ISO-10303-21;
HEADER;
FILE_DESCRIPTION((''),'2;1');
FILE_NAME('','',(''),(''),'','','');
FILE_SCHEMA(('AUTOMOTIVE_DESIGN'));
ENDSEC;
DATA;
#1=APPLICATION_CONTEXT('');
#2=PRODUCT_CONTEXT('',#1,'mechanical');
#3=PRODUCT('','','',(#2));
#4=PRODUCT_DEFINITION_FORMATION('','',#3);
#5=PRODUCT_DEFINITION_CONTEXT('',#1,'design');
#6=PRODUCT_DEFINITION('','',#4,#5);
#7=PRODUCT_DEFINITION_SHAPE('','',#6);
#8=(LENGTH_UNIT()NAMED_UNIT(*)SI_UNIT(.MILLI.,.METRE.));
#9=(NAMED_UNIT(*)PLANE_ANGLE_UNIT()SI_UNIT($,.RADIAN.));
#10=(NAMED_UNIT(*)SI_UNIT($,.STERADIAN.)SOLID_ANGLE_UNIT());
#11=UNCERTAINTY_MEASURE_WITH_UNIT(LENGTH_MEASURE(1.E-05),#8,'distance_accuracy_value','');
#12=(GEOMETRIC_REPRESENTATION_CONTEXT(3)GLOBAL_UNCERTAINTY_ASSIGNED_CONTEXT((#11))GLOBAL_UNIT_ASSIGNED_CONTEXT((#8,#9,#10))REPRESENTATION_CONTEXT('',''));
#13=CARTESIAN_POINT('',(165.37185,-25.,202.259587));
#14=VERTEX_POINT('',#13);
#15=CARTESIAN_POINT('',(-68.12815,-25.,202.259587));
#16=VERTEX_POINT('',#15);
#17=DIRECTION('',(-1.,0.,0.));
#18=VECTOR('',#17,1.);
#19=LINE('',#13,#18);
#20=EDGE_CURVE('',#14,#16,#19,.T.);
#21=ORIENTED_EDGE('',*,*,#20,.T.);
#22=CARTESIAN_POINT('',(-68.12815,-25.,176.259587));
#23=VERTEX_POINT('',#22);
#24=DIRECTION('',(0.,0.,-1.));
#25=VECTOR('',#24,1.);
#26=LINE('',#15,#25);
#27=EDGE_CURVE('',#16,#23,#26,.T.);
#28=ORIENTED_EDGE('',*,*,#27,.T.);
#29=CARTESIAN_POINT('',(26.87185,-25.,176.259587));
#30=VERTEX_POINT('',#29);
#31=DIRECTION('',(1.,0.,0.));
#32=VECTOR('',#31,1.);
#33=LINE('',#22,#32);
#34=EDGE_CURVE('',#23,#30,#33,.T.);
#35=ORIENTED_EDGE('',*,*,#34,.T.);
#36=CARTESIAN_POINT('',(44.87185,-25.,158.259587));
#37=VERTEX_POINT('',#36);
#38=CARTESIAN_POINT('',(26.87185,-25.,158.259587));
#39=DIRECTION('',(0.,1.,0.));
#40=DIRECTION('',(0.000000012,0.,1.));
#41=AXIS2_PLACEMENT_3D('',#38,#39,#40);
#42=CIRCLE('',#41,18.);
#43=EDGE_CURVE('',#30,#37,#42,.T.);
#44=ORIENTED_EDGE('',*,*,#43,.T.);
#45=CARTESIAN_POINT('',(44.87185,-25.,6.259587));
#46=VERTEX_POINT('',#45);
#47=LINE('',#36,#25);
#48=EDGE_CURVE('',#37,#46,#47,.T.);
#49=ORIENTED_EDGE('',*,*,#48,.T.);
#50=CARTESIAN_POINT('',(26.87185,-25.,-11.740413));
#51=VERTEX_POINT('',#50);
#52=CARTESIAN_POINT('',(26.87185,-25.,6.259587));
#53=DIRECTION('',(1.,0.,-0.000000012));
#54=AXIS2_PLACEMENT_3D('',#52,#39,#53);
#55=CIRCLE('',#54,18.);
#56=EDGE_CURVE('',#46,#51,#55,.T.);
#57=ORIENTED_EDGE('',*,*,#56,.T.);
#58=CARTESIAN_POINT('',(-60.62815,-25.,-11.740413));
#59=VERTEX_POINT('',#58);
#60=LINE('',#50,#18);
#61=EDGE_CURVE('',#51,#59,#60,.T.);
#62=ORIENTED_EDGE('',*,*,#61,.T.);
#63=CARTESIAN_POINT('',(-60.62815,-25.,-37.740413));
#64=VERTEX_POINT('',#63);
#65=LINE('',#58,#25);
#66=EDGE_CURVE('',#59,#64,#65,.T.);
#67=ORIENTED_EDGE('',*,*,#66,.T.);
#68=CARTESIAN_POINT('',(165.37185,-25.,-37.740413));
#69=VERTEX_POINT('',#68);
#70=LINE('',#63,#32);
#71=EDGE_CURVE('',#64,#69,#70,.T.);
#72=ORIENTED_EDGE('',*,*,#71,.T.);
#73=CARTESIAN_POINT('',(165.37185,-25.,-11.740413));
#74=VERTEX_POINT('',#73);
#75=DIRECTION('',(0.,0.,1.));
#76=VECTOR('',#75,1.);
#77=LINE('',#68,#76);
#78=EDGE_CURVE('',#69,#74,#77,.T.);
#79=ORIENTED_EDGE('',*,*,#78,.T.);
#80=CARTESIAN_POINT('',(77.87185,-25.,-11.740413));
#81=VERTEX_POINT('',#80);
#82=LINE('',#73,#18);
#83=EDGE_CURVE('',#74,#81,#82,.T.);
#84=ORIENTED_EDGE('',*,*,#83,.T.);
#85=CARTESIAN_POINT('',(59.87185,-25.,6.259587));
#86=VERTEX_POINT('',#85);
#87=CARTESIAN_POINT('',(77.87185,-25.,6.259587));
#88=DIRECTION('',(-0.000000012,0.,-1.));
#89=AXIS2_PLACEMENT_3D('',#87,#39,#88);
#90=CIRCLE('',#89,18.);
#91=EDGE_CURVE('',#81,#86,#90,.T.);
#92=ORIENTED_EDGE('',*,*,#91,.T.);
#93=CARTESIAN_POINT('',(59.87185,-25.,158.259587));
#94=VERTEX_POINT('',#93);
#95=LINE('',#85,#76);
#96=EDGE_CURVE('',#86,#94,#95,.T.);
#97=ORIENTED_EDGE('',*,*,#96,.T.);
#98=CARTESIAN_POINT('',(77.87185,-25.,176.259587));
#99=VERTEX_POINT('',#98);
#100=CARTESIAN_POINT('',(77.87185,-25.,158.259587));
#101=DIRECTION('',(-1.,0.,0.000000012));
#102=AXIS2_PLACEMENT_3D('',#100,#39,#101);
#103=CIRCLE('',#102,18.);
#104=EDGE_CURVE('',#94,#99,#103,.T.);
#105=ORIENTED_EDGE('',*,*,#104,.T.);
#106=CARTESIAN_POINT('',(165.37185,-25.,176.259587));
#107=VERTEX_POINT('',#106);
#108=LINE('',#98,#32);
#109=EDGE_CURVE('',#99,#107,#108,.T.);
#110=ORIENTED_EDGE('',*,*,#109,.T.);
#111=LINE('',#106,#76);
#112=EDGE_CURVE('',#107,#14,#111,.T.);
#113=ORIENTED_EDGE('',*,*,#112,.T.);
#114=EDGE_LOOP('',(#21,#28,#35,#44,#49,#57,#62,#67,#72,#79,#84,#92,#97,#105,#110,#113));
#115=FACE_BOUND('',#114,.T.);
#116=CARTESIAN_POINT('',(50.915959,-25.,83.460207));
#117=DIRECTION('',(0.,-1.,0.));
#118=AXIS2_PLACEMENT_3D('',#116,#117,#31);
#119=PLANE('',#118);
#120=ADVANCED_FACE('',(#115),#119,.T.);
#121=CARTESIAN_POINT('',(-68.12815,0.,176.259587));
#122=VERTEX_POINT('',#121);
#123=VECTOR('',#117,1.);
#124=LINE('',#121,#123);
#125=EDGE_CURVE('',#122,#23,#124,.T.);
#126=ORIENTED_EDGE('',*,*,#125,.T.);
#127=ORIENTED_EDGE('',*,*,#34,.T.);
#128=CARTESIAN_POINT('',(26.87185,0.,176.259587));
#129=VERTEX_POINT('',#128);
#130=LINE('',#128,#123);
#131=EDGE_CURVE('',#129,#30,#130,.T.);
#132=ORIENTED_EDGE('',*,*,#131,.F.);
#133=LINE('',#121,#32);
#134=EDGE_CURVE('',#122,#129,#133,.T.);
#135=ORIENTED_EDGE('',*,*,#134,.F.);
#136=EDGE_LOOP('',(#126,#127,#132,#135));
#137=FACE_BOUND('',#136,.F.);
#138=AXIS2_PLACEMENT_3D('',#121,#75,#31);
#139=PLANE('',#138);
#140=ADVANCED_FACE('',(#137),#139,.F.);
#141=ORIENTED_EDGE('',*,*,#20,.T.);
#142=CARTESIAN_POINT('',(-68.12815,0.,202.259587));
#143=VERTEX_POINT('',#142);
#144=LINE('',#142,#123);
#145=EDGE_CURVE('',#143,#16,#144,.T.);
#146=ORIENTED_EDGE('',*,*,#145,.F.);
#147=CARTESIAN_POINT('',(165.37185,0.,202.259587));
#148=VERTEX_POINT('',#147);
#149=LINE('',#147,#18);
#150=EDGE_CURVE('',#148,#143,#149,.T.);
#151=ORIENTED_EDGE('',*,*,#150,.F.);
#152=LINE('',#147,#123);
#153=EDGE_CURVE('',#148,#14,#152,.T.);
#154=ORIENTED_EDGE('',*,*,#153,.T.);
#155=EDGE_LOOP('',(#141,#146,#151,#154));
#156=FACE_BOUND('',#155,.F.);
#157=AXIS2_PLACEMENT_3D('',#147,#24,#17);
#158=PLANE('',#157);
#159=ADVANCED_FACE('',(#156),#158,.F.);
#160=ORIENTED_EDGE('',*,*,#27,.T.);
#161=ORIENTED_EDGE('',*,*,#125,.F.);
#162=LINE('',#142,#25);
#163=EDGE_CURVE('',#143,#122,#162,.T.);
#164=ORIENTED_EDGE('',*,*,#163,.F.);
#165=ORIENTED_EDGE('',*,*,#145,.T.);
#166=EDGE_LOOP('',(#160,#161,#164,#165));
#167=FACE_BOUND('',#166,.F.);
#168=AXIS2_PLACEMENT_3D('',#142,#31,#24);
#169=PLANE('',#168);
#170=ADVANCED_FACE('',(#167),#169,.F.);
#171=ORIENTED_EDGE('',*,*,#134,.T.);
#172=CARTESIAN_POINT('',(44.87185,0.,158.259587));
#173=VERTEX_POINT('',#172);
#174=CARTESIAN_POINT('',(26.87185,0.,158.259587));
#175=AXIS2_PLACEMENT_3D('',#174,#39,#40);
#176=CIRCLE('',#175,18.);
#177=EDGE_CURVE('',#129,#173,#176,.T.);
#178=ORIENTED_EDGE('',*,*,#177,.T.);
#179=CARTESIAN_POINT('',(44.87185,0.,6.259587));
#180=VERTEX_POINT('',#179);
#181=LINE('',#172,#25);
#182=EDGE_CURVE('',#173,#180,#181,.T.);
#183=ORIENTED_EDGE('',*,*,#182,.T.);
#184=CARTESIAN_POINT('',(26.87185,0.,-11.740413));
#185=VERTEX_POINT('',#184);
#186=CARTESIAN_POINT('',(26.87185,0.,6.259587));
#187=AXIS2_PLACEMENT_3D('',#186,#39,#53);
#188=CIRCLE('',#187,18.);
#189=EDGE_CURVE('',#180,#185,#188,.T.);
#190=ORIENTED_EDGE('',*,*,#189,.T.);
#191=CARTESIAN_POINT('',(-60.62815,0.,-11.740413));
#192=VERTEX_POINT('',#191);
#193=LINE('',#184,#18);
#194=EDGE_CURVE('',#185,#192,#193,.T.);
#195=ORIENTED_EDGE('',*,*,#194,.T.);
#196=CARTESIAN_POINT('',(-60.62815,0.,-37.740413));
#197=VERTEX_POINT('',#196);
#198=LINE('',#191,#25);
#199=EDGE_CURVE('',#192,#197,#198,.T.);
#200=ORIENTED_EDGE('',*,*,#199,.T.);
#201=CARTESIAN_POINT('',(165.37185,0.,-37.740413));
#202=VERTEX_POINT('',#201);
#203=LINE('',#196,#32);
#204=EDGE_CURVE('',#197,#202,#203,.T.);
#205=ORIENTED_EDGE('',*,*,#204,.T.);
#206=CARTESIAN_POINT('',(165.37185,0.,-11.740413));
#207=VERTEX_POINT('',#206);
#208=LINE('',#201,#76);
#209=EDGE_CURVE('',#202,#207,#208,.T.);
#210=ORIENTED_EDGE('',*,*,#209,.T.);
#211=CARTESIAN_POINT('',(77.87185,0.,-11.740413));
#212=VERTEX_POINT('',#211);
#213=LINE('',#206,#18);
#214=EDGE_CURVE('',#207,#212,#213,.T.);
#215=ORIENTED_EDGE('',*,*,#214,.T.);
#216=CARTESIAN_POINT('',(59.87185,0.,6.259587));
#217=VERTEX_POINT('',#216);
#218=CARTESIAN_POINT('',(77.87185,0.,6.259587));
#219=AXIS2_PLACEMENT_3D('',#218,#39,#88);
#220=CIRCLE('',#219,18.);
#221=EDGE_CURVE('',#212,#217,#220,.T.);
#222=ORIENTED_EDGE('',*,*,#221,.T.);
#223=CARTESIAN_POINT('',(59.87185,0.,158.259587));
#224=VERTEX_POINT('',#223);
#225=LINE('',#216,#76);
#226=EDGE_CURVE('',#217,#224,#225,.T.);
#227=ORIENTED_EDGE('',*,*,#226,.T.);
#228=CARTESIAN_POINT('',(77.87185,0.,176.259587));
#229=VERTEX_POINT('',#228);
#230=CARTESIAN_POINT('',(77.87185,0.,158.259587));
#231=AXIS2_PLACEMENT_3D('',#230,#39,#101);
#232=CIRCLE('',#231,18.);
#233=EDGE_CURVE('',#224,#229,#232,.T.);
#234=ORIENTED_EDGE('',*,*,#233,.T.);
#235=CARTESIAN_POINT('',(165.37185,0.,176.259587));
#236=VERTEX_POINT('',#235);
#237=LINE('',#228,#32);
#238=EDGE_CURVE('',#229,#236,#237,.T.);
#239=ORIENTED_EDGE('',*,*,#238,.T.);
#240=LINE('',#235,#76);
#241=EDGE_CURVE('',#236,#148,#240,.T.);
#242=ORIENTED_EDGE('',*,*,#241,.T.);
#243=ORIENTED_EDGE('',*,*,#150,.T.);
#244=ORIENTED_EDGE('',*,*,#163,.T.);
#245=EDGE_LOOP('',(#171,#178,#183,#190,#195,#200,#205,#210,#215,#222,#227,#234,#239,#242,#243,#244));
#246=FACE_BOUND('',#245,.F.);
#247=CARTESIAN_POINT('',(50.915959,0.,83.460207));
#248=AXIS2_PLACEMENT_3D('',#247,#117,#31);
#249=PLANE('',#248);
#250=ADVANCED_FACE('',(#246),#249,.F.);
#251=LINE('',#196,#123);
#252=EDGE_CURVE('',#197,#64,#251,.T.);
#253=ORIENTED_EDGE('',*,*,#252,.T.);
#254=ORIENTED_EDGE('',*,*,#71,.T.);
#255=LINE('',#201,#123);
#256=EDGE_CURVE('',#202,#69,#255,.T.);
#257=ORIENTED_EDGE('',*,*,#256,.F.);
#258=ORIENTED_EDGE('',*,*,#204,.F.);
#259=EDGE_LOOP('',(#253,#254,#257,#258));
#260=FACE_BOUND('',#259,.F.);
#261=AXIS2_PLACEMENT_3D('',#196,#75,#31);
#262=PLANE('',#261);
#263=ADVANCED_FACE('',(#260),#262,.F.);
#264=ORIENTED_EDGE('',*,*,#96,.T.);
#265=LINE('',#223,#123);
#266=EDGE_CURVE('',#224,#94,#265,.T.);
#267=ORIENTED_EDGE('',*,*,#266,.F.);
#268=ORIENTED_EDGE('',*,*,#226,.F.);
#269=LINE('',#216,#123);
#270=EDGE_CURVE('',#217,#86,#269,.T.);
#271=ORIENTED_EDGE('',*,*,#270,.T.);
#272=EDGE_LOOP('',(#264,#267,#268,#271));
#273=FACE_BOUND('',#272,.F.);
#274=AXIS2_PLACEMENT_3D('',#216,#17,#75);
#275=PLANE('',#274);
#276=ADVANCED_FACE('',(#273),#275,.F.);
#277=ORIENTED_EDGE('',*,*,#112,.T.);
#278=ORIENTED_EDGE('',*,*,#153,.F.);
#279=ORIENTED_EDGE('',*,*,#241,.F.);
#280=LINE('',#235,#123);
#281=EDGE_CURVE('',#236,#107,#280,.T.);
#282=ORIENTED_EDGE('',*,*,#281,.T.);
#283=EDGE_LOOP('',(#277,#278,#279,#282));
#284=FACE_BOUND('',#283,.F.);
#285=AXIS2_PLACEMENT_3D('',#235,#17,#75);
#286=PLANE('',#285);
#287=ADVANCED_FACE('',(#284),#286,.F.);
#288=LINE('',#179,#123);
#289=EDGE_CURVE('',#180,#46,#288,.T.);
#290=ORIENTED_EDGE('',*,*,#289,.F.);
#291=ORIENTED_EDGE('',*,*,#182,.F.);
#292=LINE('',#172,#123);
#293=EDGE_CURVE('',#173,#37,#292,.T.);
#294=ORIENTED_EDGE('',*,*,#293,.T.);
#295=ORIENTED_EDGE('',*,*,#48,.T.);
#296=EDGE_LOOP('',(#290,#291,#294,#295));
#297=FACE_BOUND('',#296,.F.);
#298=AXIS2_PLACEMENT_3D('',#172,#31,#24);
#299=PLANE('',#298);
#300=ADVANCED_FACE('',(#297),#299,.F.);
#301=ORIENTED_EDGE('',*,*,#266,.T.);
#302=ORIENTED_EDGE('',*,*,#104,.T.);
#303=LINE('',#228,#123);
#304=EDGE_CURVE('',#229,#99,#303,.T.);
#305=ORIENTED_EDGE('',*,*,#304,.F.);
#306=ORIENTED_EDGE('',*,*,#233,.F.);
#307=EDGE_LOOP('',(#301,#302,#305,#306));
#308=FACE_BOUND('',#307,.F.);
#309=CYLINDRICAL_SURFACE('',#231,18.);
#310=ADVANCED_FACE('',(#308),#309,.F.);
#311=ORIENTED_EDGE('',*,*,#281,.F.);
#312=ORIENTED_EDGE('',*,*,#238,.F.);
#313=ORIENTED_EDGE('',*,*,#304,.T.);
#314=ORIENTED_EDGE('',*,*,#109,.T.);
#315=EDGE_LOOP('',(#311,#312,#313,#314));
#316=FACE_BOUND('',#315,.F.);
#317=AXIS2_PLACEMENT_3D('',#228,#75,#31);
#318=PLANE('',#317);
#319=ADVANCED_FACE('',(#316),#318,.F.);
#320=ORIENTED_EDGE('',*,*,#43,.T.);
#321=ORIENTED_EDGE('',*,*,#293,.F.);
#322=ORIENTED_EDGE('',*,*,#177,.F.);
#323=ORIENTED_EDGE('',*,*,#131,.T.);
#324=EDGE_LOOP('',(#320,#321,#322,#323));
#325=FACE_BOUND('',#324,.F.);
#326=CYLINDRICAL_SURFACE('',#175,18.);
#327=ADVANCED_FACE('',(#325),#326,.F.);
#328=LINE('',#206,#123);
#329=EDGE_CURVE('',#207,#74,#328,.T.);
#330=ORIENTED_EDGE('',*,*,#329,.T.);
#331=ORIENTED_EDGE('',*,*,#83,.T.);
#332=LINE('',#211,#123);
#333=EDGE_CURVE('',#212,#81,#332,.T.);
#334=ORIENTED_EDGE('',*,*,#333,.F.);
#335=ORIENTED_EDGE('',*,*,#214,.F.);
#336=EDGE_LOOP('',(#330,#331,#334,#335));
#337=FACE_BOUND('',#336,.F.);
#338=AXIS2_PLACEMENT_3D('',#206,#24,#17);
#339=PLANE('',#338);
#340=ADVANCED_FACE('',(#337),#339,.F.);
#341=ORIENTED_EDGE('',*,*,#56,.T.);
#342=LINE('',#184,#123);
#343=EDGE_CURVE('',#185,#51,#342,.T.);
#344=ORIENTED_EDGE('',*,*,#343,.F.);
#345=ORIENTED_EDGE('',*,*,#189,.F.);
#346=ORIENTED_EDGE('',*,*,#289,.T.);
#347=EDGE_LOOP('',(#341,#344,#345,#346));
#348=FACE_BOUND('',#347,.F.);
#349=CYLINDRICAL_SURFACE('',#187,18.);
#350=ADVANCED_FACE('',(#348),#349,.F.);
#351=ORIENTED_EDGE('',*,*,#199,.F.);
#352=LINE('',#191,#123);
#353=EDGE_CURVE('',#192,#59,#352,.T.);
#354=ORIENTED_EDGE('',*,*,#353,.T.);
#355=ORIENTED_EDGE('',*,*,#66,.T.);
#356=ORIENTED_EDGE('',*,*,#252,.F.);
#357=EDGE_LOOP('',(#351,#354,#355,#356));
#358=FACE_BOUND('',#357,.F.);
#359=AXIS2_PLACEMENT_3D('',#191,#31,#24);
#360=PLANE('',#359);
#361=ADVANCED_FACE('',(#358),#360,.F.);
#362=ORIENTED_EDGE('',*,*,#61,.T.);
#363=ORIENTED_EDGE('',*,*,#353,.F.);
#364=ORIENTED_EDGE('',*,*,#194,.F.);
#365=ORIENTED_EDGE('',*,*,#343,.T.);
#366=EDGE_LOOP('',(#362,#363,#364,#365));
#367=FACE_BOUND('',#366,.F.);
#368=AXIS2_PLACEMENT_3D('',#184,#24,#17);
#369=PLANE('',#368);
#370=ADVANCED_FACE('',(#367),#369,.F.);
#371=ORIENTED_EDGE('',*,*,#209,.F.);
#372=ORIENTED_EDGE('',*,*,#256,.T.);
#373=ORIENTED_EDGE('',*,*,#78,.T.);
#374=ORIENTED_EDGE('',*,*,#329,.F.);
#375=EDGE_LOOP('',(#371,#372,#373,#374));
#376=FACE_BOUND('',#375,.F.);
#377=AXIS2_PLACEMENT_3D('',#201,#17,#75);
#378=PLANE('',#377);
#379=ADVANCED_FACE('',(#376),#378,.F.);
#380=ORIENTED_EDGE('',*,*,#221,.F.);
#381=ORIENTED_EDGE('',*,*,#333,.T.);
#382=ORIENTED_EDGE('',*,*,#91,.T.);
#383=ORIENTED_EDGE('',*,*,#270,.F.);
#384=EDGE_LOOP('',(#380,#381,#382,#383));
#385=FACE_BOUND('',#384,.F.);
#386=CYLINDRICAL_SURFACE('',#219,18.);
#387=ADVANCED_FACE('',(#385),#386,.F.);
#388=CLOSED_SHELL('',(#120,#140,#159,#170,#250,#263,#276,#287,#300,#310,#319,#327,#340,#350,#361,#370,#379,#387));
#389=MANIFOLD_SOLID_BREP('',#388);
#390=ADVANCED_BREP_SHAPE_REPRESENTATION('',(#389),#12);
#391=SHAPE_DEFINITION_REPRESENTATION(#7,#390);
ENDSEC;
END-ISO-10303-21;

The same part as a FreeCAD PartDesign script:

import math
import FreeCAD as App
import Part
import Sketcher

V = App.Vector

doc = App.newDocument("Part")
body = doc.addObject("PartDesign::Body", "Body")

sketch1 = body.newObject("Sketcher::SketchObject", "Sketch")
sketch1.AttachmentSupport = (doc.getObject("XZ_Plane"), [""])
sketch1.MapMode = "FlatFace"
sketch1.addGeometry([
    Part.LineSegment(V(-61, -12, 0), V(-61, -38, 0)),
    Part.LineSegment(V(-61, -38, 0), V(165, -38, 0)),
    Part.LineSegment(V(165, -38, 0), V(165, -12, 0)),
    Part.LineSegment(V(165, -12, 0), V(78, -12, 0)),
    Part.ArcOfCircle(Part.Circle(V(78, 6, 0), V(0, 0, 1), 18), math.radians(-180), math.radians(-90)),
    Part.LineSegment(V(60, 6, 0), V(60, 158, 0)),
    Part.ArcOfCircle(Part.Circle(V(78, 158, 0), V(0, 0, 1), 18), math.radians(90), math.radians(180)),
    Part.LineSegment(V(78, 176, 0), V(165, 176, 0)),
    Part.LineSegment(V(165, 176, 0), V(165, 202, 0)),
    Part.LineSegment(V(165, 202, 0), V(-68, 202, 0)),
    Part.LineSegment(V(-68, 202, 0), V(-68, 176, 0)),
    Part.LineSegment(V(-68, 176, 0), V(27, 176, 0)),
    Part.ArcOfCircle(Part.Circle(V(27, 158, 0), V(0, 0, 1), 18), math.radians(0), math.radians(90)),
    Part.LineSegment(V(45, 158, 0), V(45, 6, 0)),
    Part.ArcOfCircle(Part.Circle(V(27, 6, 0), V(0, 0, 1), 18), math.radians(-90), math.radians(0)),
    Part.LineSegment(V(27, -12, 0), V(-61, -12, 0)),
], False)
sketch1.addConstraint([
    Sketcher.Constraint("Coincident", 0, 2, 1, 1),
    Sketcher.Constraint("Coincident", 1, 2, 2, 1),
    Sketcher.Constraint("Coincident", 2, 2, 3, 1),
    Sketcher.Constraint("Tangent", 3, 2, 4, 2),
    Sketcher.Constraint("Tangent", 4, 1, 5, 1),
    Sketcher.Constraint("Tangent", 5, 2, 6, 2),
    Sketcher.Constraint("Tangent", 6, 1, 7, 1),
    Sketcher.Constraint("Coincident", 7, 2, 8, 1),
    Sketcher.Constraint("Coincident", 8, 2, 9, 1),
    Sketcher.Constraint("Coincident", 9, 2, 10, 1),
    Sketcher.Constraint("Coincident", 10, 2, 11, 1),
    Sketcher.Constraint("Tangent", 11, 2, 12, 2),
    Sketcher.Constraint("Tangent", 12, 1, 13, 1),
    Sketcher.Constraint("Tangent", 13, 2, 14, 2),
    Sketcher.Constraint("Tangent", 14, 1, 15, 1),
    Sketcher.Constraint("Coincident", 15, 2, 0, 1),
    Sketcher.Constraint("Vertical", 0),
    Sketcher.Constraint("Horizontal", 1),
    Sketcher.Constraint("Vertical", 2),
    Sketcher.Constraint("Horizontal", 3),
    Sketcher.Constraint("Vertical", 5),
    Sketcher.Constraint("Horizontal", 7),
    Sketcher.Constraint("Vertical", 8),
    Sketcher.Constraint("Horizontal", 9),
    Sketcher.Constraint("Vertical", 10),
    Sketcher.Constraint("Horizontal", 11),
    Sketcher.Constraint("Vertical", 13),
    Sketcher.Constraint("Horizontal", 15),
    Sketcher.Constraint("Equal", 4, 6),
    Sketcher.Constraint("Equal", 6, 12),
    Sketcher.Constraint("Equal", 12, 14),
    Sketcher.Constraint("Horizontal", 6, 3, 12, 3),
    Sketcher.Constraint("Horizontal", 4, 3, 14, 3),
    Sketcher.Constraint("Vertical", 2, 2, 7, 2),
    Sketcher.Constraint("Equal", 7, 15),
    Sketcher.Constraint("Equal", 2, 8),
    Sketcher.Constraint("Radius", 4, 18.0),
    Sketcher.Constraint("DistanceX", 1, 1, 1, 2, 226.0),
    Sketcher.Constraint("DistanceX", 11, 1, 11, 2, 95.0),
    Sketcher.Constraint("DistanceY", 0, 2, 0, 1, 26.0),
    Sketcher.Constraint("DistanceY", 5, 1, 5, 2, 152.0),
    Sketcher.Constraint("DistanceX", 3, 2, 3, 1, 87.5),
    Sketcher.Constraint("DistanceX", -1, 1, 4, 3, 77.87185),
    Sketcher.Constraint("DistanceY", -1, 1, 4, 3, 6.259587),
])
pad1 = body.newObject("PartDesign::Pad", "Pad")
pad1.Profile = sketch1
pad1.Length = 25

doc.recompute()
